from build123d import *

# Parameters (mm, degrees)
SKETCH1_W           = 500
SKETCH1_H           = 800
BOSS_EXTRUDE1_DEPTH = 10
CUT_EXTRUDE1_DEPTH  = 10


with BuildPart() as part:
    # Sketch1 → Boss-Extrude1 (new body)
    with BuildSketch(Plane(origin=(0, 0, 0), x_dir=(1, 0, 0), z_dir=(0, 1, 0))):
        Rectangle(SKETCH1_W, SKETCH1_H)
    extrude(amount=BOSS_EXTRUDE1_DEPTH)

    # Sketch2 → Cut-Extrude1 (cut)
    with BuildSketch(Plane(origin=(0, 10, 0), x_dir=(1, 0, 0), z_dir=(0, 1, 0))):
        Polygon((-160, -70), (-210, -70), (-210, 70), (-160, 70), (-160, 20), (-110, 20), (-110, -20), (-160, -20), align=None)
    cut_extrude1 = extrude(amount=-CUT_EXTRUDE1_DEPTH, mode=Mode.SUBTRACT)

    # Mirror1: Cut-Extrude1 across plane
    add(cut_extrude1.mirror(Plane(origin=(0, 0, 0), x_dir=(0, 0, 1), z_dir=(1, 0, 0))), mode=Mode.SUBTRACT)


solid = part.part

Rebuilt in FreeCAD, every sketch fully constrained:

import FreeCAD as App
import Part
import Sketcher
from FreeCAD import Vector

doc = App.newDocument("Part")
body = doc.addObject("PartDesign::Body", "Body")

# Sketch on XZ plane
sketch1 = body.newObject("Sketcher::SketchObject", "Sketch")
sketch1.AttachmentSupport = (doc.getObject("XZ_Plane"), [""])
sketch1.MapMode = "FlatFace"
sketch1.addGeometry([
    Part.LineSegment(Vector(-250, -400, 0), Vector(-250, 400, 0)),
    Part.LineSegment(Vector(-250, 400, 0), Vector(250, 400, 0)),
    Part.LineSegment(Vector(250, 400, 0), Vector(250, -400, 0)),
    Part.LineSegment(Vector(250, -400, 0), Vector(-250, -400, 0)),
], False)
sketch1.addConstraint([
    Sketcher.Constraint("Coincident", 0, 2, 1, 1),
    Sketcher.Constraint("Coincident", 1, 2, 2, 1),
    Sketcher.Constraint("Coincident", 2, 2, 3, 1),
    Sketcher.Constraint("Coincident", 3, 2, 0, 1),
    Sketcher.Constraint("Vertical", 0),
    Sketcher.Constraint("Horizontal", 1),
    Sketcher.Constraint("Vertical", 2),
    Sketcher.Constraint("Horizontal", 3),
    Sketcher.Constraint("Symmetric", 0, 2, 2, 2, -1, 1),
    Sketcher.Constraint("DistanceX", 1, 1, 1, 2, 500.0),
    Sketcher.Constraint("DistanceY", 0, 1, 0, 2, 800.0),
])
pad1 = body.newObject("PartDesign::Pad", "Pad")
pad1.Profile = sketch1
pad1.Length = 10
pad1.Reversed = True

# Sketch on XZ plane
sketch2 = body.newObject("Sketcher::SketchObject", "Sketch001")
sketch2.AttachmentSupport = (doc.getObject("XZ_Plane"), [""])
sketch2.MapMode = "FlatFace"
sketch2.AttachmentOffset = App.Placement(Vector(0, 0, -10), App.Rotation())
sketch2.addGeometry([
    Part.LineSegment(Vector(-210, 70, 0), Vector(-160, 70, 0)),  # 0
    Part.LineSegment(Vector(-160, 70, 0), Vector(-160, 20, 0)),  # 1
    Part.LineSegment(Vector(-160, 20, 0), Vector(-110, 20, 0)),  # 2
    Part.LineSegment(Vector(-110, 20, 0), Vector(-110, -20, 0)),  # 3
    Part.LineSegment(Vector(-110, -20, 0), Vector(-160, -20, 0)),  # 4
    Part.LineSegment(Vector(-160, -20, 0), Vector(-160, -70, 0)),  # 5
    Part.LineSegment(Vector(-160, -70, 0), Vector(-210, -70, 0)),  # 6
    Part.LineSegment(Vector(-210, -70, 0), Vector(-210, 70, 0)),  # 7
], False)
sketch2.addConstraint([
    Sketcher.Constraint("Coincident", 0, 2, 1, 1),
    Sketcher.Constraint("Coincident", 1, 2, 2, 1),
    Sketcher.Constraint("Coincident", 2, 2, 3, 1),
    Sketcher.Constraint("Coincident", 3, 2, 4, 1),
    Sketcher.Constraint("Coincident", 4, 2, 5, 1),
    Sketcher.Constraint("Coincident", 5, 2, 6, 1),
    Sketcher.Constraint("Coincident", 6, 2, 7, 1),
    Sketcher.Constraint("Coincident", 7, 2, 0, 1),
    Sketcher.Constraint("Horizontal", 0),
    Sketcher.Constraint("Vertical", 1),
    Sketcher.Constraint("Horizontal", 2),
    Sketcher.Constraint("Vertical", 3),
    Sketcher.Constraint("Horizontal", 4),
    Sketcher.Constraint("Vertical", 5),
    Sketcher.Constraint("Horizontal", 6),
    Sketcher.Constraint("Vertical", 7),
    Sketcher.Constraint("Symmetric", 1, 2, 4, 2, -1),
    Sketcher.Constraint("Equal", 0, 2),
    Sketcher.Constraint("Equal", 6, 1),
    Sketcher.Constraint("Equal", 1, 5),
    Sketcher.Constraint("DistanceX", 0, 1, 0, 2, 50.0),
    Sketcher.Constraint("DistanceY", 3, 2, 3, 1, 40.0),
    Sketcher.Constraint("DistanceX", 0, 2, -1, 1, 160.0),
])
pocket1 = body.newObject("PartDesign::Pocket", "Pocket")
pocket1.Profile = sketch2
pocket1.Length = 10
pocket1.Reversed = True
doc.recompute()

mirrored = body.newObject("PartDesign::Mirrored", "Mirrored")
mirrored.Originals = [pocket1]
mirrored.MirrorPlane = (doc.getObject("YZ_Plane"), [""])
body.Tip = mirrored

doc.recompute()
